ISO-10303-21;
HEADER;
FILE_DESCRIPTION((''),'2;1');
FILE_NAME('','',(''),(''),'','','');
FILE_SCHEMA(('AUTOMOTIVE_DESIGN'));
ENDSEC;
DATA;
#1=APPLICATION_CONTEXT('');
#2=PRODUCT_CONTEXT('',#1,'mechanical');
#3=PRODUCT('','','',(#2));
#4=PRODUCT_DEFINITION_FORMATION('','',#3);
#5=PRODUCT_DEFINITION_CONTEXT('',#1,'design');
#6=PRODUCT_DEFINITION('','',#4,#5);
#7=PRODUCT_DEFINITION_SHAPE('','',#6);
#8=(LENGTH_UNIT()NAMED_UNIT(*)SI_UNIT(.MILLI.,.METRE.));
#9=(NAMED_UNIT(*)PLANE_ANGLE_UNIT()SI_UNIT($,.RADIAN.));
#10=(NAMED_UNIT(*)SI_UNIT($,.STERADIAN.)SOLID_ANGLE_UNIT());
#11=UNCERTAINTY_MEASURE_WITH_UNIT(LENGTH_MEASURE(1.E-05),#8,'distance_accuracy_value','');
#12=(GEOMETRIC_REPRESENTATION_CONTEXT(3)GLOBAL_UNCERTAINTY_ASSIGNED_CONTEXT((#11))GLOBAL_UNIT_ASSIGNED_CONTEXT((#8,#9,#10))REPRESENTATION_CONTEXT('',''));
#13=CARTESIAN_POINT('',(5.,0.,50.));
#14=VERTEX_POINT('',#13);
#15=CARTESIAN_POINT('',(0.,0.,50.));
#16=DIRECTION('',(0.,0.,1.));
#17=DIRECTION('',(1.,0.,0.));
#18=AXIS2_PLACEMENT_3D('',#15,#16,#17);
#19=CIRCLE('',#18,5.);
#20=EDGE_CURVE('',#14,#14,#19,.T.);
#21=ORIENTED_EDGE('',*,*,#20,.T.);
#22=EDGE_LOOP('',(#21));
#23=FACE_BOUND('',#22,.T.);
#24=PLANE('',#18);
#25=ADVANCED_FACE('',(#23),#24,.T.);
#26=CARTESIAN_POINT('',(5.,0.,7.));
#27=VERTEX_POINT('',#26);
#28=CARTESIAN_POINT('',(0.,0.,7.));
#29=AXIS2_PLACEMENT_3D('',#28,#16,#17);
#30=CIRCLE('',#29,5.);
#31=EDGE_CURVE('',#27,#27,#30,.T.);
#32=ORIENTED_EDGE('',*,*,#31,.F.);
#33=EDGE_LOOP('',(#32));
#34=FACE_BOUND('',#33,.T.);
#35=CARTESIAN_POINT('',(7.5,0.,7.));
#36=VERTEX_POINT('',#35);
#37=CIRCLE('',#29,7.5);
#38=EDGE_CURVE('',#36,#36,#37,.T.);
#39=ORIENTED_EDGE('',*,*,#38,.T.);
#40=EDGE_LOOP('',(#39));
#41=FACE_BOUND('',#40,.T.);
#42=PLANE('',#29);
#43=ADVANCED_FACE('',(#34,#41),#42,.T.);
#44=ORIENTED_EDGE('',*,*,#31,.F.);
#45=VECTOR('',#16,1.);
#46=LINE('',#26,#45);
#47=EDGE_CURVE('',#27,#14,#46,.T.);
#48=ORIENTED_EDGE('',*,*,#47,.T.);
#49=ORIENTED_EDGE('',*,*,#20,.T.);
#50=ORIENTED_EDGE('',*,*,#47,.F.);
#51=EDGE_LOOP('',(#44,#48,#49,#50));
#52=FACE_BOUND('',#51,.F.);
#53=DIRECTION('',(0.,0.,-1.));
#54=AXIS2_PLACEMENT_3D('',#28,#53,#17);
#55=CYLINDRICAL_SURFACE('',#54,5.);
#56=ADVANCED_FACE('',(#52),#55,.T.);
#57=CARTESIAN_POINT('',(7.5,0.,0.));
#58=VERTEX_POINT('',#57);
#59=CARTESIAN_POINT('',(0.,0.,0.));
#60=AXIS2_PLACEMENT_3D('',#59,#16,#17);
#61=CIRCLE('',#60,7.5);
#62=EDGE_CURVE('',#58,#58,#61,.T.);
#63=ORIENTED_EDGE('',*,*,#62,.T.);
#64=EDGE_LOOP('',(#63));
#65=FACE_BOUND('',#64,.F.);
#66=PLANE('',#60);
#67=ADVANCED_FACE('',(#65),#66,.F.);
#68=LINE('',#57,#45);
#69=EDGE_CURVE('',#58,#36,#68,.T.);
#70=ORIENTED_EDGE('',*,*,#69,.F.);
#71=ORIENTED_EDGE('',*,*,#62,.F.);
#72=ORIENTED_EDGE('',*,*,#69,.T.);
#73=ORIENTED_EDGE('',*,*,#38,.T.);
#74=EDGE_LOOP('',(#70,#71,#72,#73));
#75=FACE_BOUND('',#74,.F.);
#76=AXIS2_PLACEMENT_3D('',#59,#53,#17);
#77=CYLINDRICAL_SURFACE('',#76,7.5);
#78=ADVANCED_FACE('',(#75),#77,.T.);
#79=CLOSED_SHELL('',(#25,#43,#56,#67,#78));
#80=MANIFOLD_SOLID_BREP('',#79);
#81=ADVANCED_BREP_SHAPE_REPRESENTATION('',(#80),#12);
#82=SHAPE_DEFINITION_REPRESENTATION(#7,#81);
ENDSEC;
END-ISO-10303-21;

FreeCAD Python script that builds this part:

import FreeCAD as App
import Part
import Sketcher
from FreeCAD import Vector

doc = App.newDocument("Part")
params = doc.addObject("Spreadsheet::Sheet", "Params")
for row, (alias, value) in enumerate([
    ("sketch1_diameter", "15 mm"),
    ("pad1_length", "7 mm"),
    ("sketch2_diameter", "10 mm"),
    ("pad2_length", "43 mm"),
], start=1):
    params.set(f"A{row}", alias)
    params.set(f"B{row}", "=" + value)
    params.setAlias(f"B{row}", alias)

body = doc.addObject("PartDesign::Body", "Body")

sketch1 = body.newObject("Sketcher::SketchObject", "Sketch")
sketch1.AttachmentSupport = (doc.getObject("XY_Plane"), [""])
sketch1.MapMode = "FlatFace"
sketch1.addGeometry(Part.Circle(Vector(0, 0, 0), Vector(0, 0, 1), 8), False)
sketch1.addConstraint([
    Sketcher.Constraint("Coincident", 0, 3, -1, 1),
    Sketcher.Constraint("Diameter", 0, 15.0),
])
sketch1.setExpression("Constraints[1]", "Params.sketch1_diameter")
pad1 = body.newObject("PartDesign::Pad", "Pad")
pad1.Profile = sketch1
pad1.setExpression("Length", "Params.pad1_length")

sketch2 = body.newObject("Sketcher::SketchObject", "Sketch001")
sketch2.AttachmentSupport = (doc.getObject("XY_Plane"), [""])
sketch2.MapMode = "FlatFace"
sketch2.AttachmentOffset = App.Placement(Vector(0, 0, 7), App.Rotation())
sketch2.addGeometry(Part.Circle(Vector(0, 0, 0), Vector(0, 0, 1), 5), False)
sketch2.addConstraint([
    Sketcher.Constraint("Coincident", 0, 3, -1, 1),
    Sketcher.Constraint("Diameter", 0, 10.0),
])
sketch2.setExpression("Constraints[1]", "Params.sketch2_diameter")
pad2 = body.newObject("PartDesign::Pad", "Pad001")
pad2.Profile = sketch2
pad2.setExpression("Length", "Params.pad2_length")

doc.recompute()
